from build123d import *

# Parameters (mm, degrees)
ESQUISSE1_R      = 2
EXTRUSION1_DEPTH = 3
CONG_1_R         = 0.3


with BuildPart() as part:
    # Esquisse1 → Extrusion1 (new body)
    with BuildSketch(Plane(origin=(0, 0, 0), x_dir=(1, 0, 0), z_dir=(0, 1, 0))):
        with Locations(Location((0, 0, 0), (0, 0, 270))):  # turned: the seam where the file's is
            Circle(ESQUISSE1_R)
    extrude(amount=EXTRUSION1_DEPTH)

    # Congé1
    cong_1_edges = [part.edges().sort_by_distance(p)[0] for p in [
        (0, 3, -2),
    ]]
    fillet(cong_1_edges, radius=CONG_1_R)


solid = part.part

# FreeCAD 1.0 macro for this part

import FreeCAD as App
import Part
import Sketcher
from FreeCAD import Vector
Q = App.Units.Quantity


def edges_at(feature, points):
    """Names of the edges that pass closest to the given points."""
    edges = feature.Shape.Edges
    near = lambda p: min(range(len(edges)), key=lambda i: edges[i].distToShape(Part.Vertex(*p))[0])
    return sorted({f"Edge{near(p) + 1}" for p in points})

doc = App.newDocument("Part")
params = doc.addObject("Spreadsheet::Sheet", "Params")
for row, (alias, value) in enumerate([
    ("sketch1_diameter", "4 mm"),
    ("pad1_length", "3 mm"),
    ("fillet_radius", "0.3 mm"),
], start=1):
    params.set(f"A{row}", alias)
    params.set(f"B{row}", "=" + value)
    params.setAlias(f"B{row}", alias)

body = doc.addObject("PartDesign::Body", "Body")

# Sketch on XZ plane
sketch1 = body.newObject("Sketcher::SketchObject", "Sketch")
sketch1.AttachmentSupport = (doc.getObject("XZ_Plane"), [""])
sketch1.MapMode = "FlatFace"
sketch1.addGeometry(Part.Circle(Vector(0, 0, 0), Vector(0, 0, 1), 2), False)
sketch1.addConstraint([
    Sketcher.Constraint("Coincident", 0, 3, -1, 1),
    Sketcher.Constraint("Diameter", 0, Q("4 mm")),
])
sketch1.setExpression("Constraints[1]", "Params.sketch1_diameter")
pad1 = body.newObject("PartDesign::Pad", "Pad")
pad1.Profile = sketch1
pad1.setExpression("Length", "Params.pad1_length")
pad1.Reversed = True
doc.recompute()

fillet = body.newObject("PartDesign::Fillet", "Fillet")
fillet.Base = (pad1, edges_at(pad1, [(0, 3, -2)]))
fillet.setExpression("Radius", "Params.fillet_radius")

doc.recompute()
